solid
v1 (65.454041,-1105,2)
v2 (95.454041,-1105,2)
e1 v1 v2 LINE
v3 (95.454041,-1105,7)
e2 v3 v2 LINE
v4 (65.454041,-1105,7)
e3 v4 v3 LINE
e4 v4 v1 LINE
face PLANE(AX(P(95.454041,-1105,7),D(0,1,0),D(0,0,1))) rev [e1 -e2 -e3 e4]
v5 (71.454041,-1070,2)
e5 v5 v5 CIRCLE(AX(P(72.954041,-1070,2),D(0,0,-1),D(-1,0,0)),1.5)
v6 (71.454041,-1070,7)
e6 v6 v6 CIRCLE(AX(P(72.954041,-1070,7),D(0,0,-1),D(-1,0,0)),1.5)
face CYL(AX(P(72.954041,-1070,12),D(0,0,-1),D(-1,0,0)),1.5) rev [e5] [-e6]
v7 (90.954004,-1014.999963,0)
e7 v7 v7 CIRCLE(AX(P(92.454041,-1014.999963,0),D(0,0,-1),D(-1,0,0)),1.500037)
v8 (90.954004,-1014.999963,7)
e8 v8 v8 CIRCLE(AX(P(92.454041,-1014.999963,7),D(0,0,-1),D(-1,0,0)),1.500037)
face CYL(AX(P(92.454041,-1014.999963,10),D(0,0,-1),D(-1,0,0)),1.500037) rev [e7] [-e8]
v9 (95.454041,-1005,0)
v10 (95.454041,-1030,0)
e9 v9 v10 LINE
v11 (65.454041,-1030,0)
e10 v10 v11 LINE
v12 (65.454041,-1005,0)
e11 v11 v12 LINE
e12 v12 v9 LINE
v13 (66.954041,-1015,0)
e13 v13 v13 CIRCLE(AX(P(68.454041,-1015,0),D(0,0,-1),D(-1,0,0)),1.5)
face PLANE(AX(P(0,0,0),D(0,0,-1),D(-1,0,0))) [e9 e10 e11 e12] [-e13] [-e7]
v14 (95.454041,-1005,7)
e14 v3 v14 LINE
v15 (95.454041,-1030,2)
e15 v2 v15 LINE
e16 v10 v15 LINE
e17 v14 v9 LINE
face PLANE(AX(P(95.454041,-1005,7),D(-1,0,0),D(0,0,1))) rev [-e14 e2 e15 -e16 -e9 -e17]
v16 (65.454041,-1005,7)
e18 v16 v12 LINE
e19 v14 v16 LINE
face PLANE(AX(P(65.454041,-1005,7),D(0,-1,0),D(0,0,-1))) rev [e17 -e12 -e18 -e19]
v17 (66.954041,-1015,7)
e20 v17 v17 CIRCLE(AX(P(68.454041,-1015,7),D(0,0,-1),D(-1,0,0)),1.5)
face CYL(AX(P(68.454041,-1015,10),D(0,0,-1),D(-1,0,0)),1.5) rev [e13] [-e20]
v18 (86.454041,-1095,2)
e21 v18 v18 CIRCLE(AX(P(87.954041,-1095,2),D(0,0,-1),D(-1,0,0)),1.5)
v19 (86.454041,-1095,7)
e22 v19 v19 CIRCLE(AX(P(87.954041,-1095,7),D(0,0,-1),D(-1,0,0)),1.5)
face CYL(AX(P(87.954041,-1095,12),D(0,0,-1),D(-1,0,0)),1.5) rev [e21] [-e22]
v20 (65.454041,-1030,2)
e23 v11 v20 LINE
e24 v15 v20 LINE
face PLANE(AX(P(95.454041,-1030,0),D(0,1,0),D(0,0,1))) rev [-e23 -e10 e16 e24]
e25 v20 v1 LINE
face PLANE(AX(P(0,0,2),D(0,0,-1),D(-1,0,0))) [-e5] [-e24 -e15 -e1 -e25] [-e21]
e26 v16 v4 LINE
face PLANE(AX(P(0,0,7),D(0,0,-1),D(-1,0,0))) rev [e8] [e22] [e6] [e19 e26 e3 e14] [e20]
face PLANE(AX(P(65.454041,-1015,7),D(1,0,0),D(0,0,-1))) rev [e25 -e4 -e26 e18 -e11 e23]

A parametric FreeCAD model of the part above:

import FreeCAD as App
import Part
import Sketcher
Q = App.Units.Quantity

doc = App.newDocument("Part")
body = doc.addObject("PartDesign::Body", "Body")

sketch1 = body.newObject("Sketcher::SketchObject", "Sketch")
sketch1.AttachmentSupport = (doc.getObject("XY_Plane"), [""])
sketch1.MapMode = "FlatFace"
sketch1.AttachmentOffset = App.Placement(App.Vector(0, 0, 2), App.Rotation())
sketch1.addGeometry([
    Part.LineSegment(App.Vector(65, -1005, 0), App.Vector(65, -1105, 0)),
    Part.LineSegment(App.Vector(65, -1105, 0), App.Vector(95, -1105, 0)),
    Part.LineSegment(App.Vector(95, -1105, 0), App.Vector(95, -1005, 0)),
    Part.LineSegment(App.Vector(95, -1005, 0), App.Vector(65, -1005, 0)),
], False)
sketch1.addConstraint([
    Sketcher.Constraint("Coincident", 0, 2, 1, 1),
    Sketcher.Constraint("Coincident", 1, 2, 2, 1),
    Sketcher.Constraint("Coincident", 2, 2, 3, 1),
    Sketcher.Constraint("Coincident", 3, 2, 0, 1),
    Sketcher.Constraint("Vertical", 0),
    Sketcher.Constraint("Horizontal", 1),
    Sketcher.Constraint("Vertical", 2),
    Sketcher.Constraint("Horizontal", 3),
    Sketcher.Constraint("DistanceX", 1, 1, 1, 2, Q("30 mm")),
    Sketcher.Constraint("DistanceY", 0, 2, 0, 1, Q("100 mm")),
    Sketcher.Constraint("DistanceY", 0, 2, -1, 1, Q("1105 mm")),
    Sketcher.Constraint("DistanceX", -1, 1, 0, 2, Q("65.454041 mm")),
])
pad1 = body.newObject("PartDesign::Pad", "Pad")
pad1.Profile = sketch1
pad1.Length = 5

sketch2 = body.newObject("Sketcher::SketchObject", "Sketch001")
sketch2.AttachmentSupport = (doc.getObject("XY_Plane"), [""])
sketch2.MapMode = "FlatFace"
sketch2.AttachmentOffset = App.Placement(App.Vector(0, 0, 2), App.Rotation())
sketch2.addGeometry([
    Part.LineSegment(App.Vector(95, -1005, 0), App.Vector(95, -1030, 0)),
    Part.LineSegment(App.Vector(95, -1030, 0), App.Vector(65, -1030, 0)),
    Part.LineSegment(App.Vector(65, -1030, 0), App.Vector(65, -1005, 0)),
    Part.LineSegment(App.Vector(65, -1005, 0), App.Vector(95, -1005, 0)),
], False)
sketch2.addConstraint([
    Sketcher.Constraint("Coincident", 0, 2, 1, 1),
    Sketcher.Constraint("Coincident", 1, 2, 2, 1),
    Sketcher.Constraint("Coincident", 2, 2, 3, 1),
    Sketcher.Constraint("Coincident", 3, 2, 0, 1),
    Sketcher.Constraint("Vertical", 0),
    Sketcher.Constraint("Horizontal", 1),
    Sketcher.Constraint("Vertical", 2),
    Sketcher.Constraint("Horizontal", 3),
    Sketcher.Constraint("DistanceX", 1, 2, 1, 1, Q("30 mm")),
    Sketcher.Constraint("DistanceY", 0, 2, 0, 1, Q("25 mm")),
    Sketcher.Constraint("DistanceY", 0, 2, -1, 1, Q("1030 mm")),
    Sketcher.Constraint("DistanceX", -1, 1, 0, 2, Q("95.454041 mm")),
])
pad2 = body.newObject("PartDesign::Pad", "Pad001")
pad2.Profile = sketch2
pad2.Length = 2
pad2.Reversed = True

sketch3 = body.newObject("Sketcher::SketchObject", "Sketch002")
sketch3.AttachmentSupport = (doc.getObject("XY_Plane"), [""])
sketch3.MapMode = "FlatFace"
sketch3.AttachmentOffset = App.Placement(App.Vector(0, 0, 2), App.Rotation())
sketch3.addGeometry([
    Part.Circle(App.Vector(73, -1070, 0), App.Vector(0, 0, 1), 1.5),
    Part.Circle(App.Vector(88, -1095, 0), App.Vector(0, 0, 1), 1.5),
], False)
sketch3.addConstraint([
    Sketcher.Constraint("Equal", 0, 1),
    Sketcher.Constraint("Diameter", 0, Q("3 mm")),
    Sketcher.Constraint("DistanceY", 0, 3, -1, 1, Q("1070 mm")),
    Sketcher.Constraint("DistanceY", 1, 3, -1, 1, Q("1095 mm")),
    Sketcher.Constraint("DistanceX", 0, 3, 1, 3, Q("15 mm")),
    Sketcher.Constraint("DistanceX", -1, 1, 0, 3, Q("72.954041 mm")),
])
pocket1 = body.newObject("PartDesign::Pocket", "Pocket")
pocket1.Profile = sketch3
pocket1.Length = 10
pocket1.Reversed = True

sketch4 = body.newObject("Sketcher::SketchObject", "Sketch003")
sketch4.AttachmentSupport = (doc.getObject("XY_Plane"), [""])
sketch4.MapMode = "FlatFace"
sketch4.addGeometry([
    Part.Circle(App.Vector(92.5, -1015, 0), App.Vector(0, 0, 1), 1.5),
    Part.Circle(App.Vector(68.5, -1015, 0), App.Vector(0, 0, 1), 1.5),
], False)
sketch4.addConstraint([
    Sketcher.Constraint("Diameter", 1, Q("3 mm")),
    Sketcher.Constraint("DistanceY", 1, 3, -1, 1, Q("1015 mm")),
    Sketcher.Constraint("DistanceX", 1, 3, 0, 3, Q("24 mm")),
    Sketcher.Constraint("Diameter", 0, Q("3.000074 mm")),
    Sketcher.Constraint("DistanceX", -1, 1, 0, 3, Q("92.454041 mm")),
    Sketcher.Constraint("DistanceY", 0, 3, -1, 1, Q("1014.999963 mm")),
])
pocket2 = body.newObject("PartDesign::Pocket", "Pocket001")
pocket2.Profile = sketch4
pocket2.Length = 10
pocket2.Reversed = True

doc.recompute()
